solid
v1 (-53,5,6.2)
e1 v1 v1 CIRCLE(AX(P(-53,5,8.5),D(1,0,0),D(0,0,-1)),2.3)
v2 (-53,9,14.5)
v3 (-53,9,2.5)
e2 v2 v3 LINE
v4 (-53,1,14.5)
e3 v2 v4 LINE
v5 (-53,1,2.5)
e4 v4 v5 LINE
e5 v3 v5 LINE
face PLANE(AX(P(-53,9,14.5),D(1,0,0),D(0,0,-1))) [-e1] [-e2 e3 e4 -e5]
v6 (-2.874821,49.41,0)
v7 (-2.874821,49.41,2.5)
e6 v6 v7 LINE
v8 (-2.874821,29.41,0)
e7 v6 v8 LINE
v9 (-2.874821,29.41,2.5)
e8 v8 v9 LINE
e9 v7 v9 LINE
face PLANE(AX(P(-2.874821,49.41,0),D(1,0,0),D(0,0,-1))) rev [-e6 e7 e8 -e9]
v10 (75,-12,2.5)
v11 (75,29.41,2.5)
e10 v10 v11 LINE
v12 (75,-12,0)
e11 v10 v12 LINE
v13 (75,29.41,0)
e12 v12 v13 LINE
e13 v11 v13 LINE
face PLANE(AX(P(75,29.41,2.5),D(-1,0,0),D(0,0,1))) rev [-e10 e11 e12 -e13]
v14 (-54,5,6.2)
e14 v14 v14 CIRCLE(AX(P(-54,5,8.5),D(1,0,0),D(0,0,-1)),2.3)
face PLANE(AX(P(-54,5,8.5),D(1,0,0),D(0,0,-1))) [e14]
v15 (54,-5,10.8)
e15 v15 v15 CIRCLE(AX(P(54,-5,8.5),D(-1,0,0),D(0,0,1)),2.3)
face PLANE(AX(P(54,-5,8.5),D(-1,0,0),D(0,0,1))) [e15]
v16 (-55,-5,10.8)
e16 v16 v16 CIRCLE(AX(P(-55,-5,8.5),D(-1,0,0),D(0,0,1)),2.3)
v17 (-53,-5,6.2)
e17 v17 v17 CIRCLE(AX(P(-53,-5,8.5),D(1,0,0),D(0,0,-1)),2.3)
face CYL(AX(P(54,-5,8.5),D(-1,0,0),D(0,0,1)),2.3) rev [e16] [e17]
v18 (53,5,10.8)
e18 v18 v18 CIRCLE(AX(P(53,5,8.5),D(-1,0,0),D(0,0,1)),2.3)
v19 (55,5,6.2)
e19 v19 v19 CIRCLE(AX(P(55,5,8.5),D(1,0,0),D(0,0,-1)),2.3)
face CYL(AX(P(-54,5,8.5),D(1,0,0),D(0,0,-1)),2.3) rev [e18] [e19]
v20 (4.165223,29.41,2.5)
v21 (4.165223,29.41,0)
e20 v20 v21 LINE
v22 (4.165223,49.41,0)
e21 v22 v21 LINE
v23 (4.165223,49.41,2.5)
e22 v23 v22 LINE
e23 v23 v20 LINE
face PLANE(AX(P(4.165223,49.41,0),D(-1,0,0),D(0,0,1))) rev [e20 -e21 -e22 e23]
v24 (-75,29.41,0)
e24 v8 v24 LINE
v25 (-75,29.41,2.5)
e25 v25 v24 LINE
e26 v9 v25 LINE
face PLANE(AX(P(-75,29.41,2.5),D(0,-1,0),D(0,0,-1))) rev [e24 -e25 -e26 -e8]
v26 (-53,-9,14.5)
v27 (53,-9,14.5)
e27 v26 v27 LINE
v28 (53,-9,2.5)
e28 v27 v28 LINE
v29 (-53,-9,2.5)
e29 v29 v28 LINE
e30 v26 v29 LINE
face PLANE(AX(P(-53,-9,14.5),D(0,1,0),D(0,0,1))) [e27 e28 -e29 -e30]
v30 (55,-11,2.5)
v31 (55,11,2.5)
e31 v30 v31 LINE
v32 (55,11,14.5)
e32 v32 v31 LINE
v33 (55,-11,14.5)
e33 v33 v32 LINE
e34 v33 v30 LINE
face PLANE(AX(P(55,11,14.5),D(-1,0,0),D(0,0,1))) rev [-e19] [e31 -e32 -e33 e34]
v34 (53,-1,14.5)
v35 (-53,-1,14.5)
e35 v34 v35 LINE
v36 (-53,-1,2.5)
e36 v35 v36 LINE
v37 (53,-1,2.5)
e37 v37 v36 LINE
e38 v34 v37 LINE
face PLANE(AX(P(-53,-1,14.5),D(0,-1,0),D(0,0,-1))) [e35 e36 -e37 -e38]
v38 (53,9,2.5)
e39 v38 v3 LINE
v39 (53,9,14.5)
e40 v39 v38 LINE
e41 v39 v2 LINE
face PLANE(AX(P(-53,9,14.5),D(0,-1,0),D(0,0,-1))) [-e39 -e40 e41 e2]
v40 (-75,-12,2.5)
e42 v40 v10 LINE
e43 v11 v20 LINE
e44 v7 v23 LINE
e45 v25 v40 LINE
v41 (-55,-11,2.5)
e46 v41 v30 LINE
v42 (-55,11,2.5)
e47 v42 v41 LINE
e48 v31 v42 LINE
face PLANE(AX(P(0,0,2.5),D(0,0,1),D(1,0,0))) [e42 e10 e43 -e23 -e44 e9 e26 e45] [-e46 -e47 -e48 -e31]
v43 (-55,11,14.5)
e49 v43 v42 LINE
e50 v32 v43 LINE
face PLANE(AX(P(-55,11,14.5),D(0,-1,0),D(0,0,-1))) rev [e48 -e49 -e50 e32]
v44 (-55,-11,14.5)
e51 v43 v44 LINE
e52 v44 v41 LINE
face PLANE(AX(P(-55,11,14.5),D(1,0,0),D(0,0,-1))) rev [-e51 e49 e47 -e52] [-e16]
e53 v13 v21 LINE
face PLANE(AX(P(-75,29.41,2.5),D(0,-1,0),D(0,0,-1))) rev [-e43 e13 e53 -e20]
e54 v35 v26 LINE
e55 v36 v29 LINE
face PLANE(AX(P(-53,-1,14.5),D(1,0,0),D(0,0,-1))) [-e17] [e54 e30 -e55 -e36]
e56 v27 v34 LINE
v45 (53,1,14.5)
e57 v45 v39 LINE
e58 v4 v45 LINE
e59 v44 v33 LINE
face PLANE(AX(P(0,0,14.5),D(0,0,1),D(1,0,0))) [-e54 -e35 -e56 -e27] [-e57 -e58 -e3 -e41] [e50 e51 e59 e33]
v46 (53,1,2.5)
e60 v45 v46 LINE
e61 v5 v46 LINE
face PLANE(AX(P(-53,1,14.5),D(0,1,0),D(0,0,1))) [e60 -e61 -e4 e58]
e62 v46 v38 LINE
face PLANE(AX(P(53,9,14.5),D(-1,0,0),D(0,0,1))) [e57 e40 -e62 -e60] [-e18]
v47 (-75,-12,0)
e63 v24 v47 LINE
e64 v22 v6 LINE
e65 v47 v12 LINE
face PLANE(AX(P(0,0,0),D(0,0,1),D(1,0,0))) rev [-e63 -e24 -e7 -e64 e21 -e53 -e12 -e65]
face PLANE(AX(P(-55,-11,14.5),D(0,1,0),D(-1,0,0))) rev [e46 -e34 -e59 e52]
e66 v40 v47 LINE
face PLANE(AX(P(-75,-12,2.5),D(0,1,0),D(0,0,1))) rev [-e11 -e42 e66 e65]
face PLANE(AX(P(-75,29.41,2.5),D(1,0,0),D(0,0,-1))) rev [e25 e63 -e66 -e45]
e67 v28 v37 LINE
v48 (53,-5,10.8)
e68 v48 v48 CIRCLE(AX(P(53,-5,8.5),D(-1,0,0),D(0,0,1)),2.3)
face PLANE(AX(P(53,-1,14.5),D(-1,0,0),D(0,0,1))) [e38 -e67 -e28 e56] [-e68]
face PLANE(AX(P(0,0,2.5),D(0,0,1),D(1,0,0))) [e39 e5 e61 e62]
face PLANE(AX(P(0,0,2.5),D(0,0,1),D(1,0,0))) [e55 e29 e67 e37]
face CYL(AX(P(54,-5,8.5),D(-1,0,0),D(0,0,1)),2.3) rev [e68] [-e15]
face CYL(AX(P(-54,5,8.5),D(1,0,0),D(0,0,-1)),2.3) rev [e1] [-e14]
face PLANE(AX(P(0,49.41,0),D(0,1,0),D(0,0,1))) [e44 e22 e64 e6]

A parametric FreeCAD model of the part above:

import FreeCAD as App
import Part
import Sketcher
from FreeCAD import Vector


def add_polygon(sketch, points):
    """Adds a closed chain of lines whose ends are joined by coincident constraints."""
    first, n = sketch.GeometryCount, len(points)
    for a, b in zip(points, points[1:] + points[:1]):
        sketch.addGeometry(Part.LineSegment(App.Vector(*a, 0), App.Vector(*b, 0)), False)
    for i in range(n):
        sketch.addConstraint(Sketcher.Constraint("Coincident", first + i, 2, first + (i + 1) % n, 1))

doc = App.newDocument("Part")
body = doc.addObject("PartDesign::Body", "Body")

# Sketch on XY plane
sketch1 = body.newObject("Sketcher::SketchObject", "Sketch")
sketch1.AttachmentSupport = (doc.getObject("XY_Plane"), [""])
sketch1.MapMode = "FlatFace"
add_polygon(sketch1, [(-75, 29.41), (-75, -12), (75, -12), (75, 29.41)])  # lines 0-3
sketch1.addConstraint(Sketcher.Constraint("Vertical", 0))
sketch1.addConstraint(Sketcher.Constraint("Horizontal", 1))
sketch1.addConstraint(Sketcher.Constraint("Vertical", 2))
sketch1.addConstraint(Sketcher.Constraint("Horizontal", 3))
sketch1.addConstraint(Sketcher.Constraint("DistanceX", 1, 1, 1, 2, 150.0))
sketch1.addConstraint(Sketcher.Constraint("DistanceX", 0, 2, -1, 1, 75.0))
sketch1.addConstraint(Sketcher.Constraint("DistanceY", 0, 2, -1, 1, 12.0))
sketch1.addConstraint(Sketcher.Constraint("DistanceY", 0, 2, 0, 1, 41.41))
pad1 = body.newObject("PartDesign::Pad", "Pad")
pad1.Profile = sketch1
pad1.Length = 2.5

# Sketch on XY plane
sketch2 = body.newObject("Sketcher::SketchObject", "Sketch001")
sketch2.AttachmentSupport = (doc.getObject("XY_Plane"), [""])
sketch2.MapMode = "FlatFace"
sketch2.AttachmentOffset = App.Placement(Vector(0, 0, 2.5), App.Rotation())
add_polygon(sketch2, [(-55, 11), (-55, -11), (55, -11), (55, 11)])  # lines 0-3
sketch2.addConstraint(Sketcher.Constraint("Vertical", 0))
sketch2.addConstraint(Sketcher.Constraint("Horizontal", 1))
sketch2.addConstraint(Sketcher.Constraint("Vertical", 2))
sketch2.addConstraint(Sketcher.Constraint("Horizontal", 3))
sketch2.addConstraint(Sketcher.Constraint("Symmetric", 0, 2, 2, 2, -1, 1))
sketch2.addConstraint(Sketcher.Constraint("DistanceX", 1, 1, 1, 2, 110.0))
sketch2.addConstraint(Sketcher.Constraint("DistanceY", 0, 2, 0, 1, 22.0))
pad2 = body.newObject("PartDesign::Pad", "Pad001")
pad2.Profile = sketch2
pad2.Length = 12

# Sketch on XY plane
sketch3 = body.newObject("Sketcher::SketchObject", "Sketch002")
sketch3.AttachmentSupport = (doc.getObject("XY_Plane"), [""])
sketch3.MapMode = "FlatFace"
sketch3.AttachmentOffset = App.Placement(Vector(0, 0, 2.5), App.Rotation())
add_polygon(sketch3, [(-53, 9), (-53, 1), (53, 1), (53, 9)])  # lines 0-3
add_polygon(sketch3, [(-53, -1), (-53, -9), (53, -9), (53, -1)])  # lines 4-7
sketch3.addConstraint(Sketcher.Constraint("Vertical", 0))
sketch3.addConstraint(Sketcher.Constraint("Horizontal", 1))
sketch3.addConstraint(Sketcher.Constraint("Vertical", 2))
sketch3.addConstraint(Sketcher.Constraint("Horizontal", 3))
sketch3.addConstraint(Sketcher.Constraint("Vertical", 4))
sketch3.addConstraint(Sketcher.Constraint("Horizontal", 5))
sketch3.addConstraint(Sketcher.Constraint("Vertical", 6))
sketch3.addConstraint(Sketcher.Constraint("Horizontal", 7))
sketch3.addConstraint(Sketcher.Constraint("Symmetric", 2, 2, 4, 2, -1, 1))
sketch3.addConstraint(Sketcher.Constraint("Symmetric", 0, 2, 6, 2, -1, 1))
sketch3.addConstraint(Sketcher.Constraint("Vertical", 3, 2, 4, 2))
sketch3.addConstraint(Sketcher.Constraint("DistanceX", 1, 1, 1, 2, 106.0))
sketch3.addConstraint(Sketcher.Constraint("DistanceY", 0, 2, 0, 1, 8.0))
sketch3.addConstraint(Sketcher.Constraint("DistanceY", -1, 1, 0, 2, 1.0))
pocket1 = body.newObject("PartDesign::Pocket", "Pocket")
pocket1.Profile = sketch3
pocket1.Length = 12
pocket1.Reversed = True

# Sketch on YZ plane
sketch4 = body.newObject("Sketcher::SketchObject", "Sketch003")
sketch4.AttachmentSupport = (doc.getObject("YZ_Plane"), [""])
sketch4.MapMode = "FlatFace"
sketch4.AttachmentOffset = App.Placement(Vector(0, 0, -55), App.Rotation())
sketch4.addGeometry(Part.Circle(Vector(-5, 8.5, 0), Vector(0, 0, 1), 2.3), False)
sketch4.addConstraint(Sketcher.Constraint("Diameter", 0, 4.6))
sketch4.addConstraint(Sketcher.Constraint("DistanceX", 0, 3, -1, 1, 5.0))
sketch4.addConstraint(Sketcher.Constraint("DistanceY", -1, 1, 0, 3, 8.5))
pocket2 = body.newObject("PartDesign::Pocket", "Pocket001")
pocket2.Profile = sketch4
pocket2.Length = 109
pocket2.Reversed = True

# Sketch on YZ plane
sketch5 = body.newObject("Sketcher::SketchObject", "Sketch004")
sketch5.AttachmentSupport = (doc.getObject("YZ_Plane"), [""])
sketch5.MapMode = "FlatFace"
sketch5.AttachmentOffset = App.Placement(Vector(0, 0, 55), App.Rotation())
sketch5.addGeometry(Part.Circle(Vector(5, 8.5, 0), Vector(0, 0, 1), 2.3), False)
sketch5.addConstraint(Sketcher.Constraint("Diameter", 0, 4.6))
sketch5.addConstraint(Sketcher.Constraint("DistanceX", -1, 1, 0, 3, 5.0))
sketch5.addConstraint(Sketcher.Constraint("DistanceY", -1, 1, 0, 3, 8.5))
pocket3 = body.newObject("PartDesign::Pocket", "Pocket002")
pocket3.Profile = sketch5
pocket3.Length = 109

# Sketch on XZ plane
sketch6 = body.newObject("Sketcher::SketchObject", "Sketch005")
sketch6.AttachmentSupport = (doc.getObject("XZ_Plane"), [""])
sketch6.MapMode = "FlatFace"
sketch6.AttachmentOffset = App.Placement(Vector(0, 0, -29.41), App.Rotation())
add_polygon(sketch6, [(-2.874821, 0), (-2.874821, 2.5), (4.165223, 2.5), (4.165223, 0)])  # lines 0-3
sketch6.addConstraint(Sketcher.Constraint("Vertical", 0))
sketch6.addConstraint(Sketcher.Constraint("Horizontal", 1))
sketch6.addConstraint(Sketcher.Constraint("Vertical", 2))
sketch6.addConstraint(Sketcher.Constraint("Horizontal", 3))
sketch6.addConstraint(Sketcher.Constraint("PointOnObject", 2, 2, -1))
sketch6.addConstraint(Sketcher.Constraint("DistanceY", 0, 1, 0, 2, 2.5))
sketch6.addConstraint(Sketcher.Constraint("DistanceX", 1, 1, 1, 2, 7.040044))
sketch6.addConstraint(Sketcher.Constraint("DistanceX", 0, 2, -1, 1, 2.874821))
pad3 = body.newObject("PartDesign::Pad", "Pad002")
pad3.Profile = sketch6
pad3.Length = 20
pad3.Reversed = True

doc.recompute()
